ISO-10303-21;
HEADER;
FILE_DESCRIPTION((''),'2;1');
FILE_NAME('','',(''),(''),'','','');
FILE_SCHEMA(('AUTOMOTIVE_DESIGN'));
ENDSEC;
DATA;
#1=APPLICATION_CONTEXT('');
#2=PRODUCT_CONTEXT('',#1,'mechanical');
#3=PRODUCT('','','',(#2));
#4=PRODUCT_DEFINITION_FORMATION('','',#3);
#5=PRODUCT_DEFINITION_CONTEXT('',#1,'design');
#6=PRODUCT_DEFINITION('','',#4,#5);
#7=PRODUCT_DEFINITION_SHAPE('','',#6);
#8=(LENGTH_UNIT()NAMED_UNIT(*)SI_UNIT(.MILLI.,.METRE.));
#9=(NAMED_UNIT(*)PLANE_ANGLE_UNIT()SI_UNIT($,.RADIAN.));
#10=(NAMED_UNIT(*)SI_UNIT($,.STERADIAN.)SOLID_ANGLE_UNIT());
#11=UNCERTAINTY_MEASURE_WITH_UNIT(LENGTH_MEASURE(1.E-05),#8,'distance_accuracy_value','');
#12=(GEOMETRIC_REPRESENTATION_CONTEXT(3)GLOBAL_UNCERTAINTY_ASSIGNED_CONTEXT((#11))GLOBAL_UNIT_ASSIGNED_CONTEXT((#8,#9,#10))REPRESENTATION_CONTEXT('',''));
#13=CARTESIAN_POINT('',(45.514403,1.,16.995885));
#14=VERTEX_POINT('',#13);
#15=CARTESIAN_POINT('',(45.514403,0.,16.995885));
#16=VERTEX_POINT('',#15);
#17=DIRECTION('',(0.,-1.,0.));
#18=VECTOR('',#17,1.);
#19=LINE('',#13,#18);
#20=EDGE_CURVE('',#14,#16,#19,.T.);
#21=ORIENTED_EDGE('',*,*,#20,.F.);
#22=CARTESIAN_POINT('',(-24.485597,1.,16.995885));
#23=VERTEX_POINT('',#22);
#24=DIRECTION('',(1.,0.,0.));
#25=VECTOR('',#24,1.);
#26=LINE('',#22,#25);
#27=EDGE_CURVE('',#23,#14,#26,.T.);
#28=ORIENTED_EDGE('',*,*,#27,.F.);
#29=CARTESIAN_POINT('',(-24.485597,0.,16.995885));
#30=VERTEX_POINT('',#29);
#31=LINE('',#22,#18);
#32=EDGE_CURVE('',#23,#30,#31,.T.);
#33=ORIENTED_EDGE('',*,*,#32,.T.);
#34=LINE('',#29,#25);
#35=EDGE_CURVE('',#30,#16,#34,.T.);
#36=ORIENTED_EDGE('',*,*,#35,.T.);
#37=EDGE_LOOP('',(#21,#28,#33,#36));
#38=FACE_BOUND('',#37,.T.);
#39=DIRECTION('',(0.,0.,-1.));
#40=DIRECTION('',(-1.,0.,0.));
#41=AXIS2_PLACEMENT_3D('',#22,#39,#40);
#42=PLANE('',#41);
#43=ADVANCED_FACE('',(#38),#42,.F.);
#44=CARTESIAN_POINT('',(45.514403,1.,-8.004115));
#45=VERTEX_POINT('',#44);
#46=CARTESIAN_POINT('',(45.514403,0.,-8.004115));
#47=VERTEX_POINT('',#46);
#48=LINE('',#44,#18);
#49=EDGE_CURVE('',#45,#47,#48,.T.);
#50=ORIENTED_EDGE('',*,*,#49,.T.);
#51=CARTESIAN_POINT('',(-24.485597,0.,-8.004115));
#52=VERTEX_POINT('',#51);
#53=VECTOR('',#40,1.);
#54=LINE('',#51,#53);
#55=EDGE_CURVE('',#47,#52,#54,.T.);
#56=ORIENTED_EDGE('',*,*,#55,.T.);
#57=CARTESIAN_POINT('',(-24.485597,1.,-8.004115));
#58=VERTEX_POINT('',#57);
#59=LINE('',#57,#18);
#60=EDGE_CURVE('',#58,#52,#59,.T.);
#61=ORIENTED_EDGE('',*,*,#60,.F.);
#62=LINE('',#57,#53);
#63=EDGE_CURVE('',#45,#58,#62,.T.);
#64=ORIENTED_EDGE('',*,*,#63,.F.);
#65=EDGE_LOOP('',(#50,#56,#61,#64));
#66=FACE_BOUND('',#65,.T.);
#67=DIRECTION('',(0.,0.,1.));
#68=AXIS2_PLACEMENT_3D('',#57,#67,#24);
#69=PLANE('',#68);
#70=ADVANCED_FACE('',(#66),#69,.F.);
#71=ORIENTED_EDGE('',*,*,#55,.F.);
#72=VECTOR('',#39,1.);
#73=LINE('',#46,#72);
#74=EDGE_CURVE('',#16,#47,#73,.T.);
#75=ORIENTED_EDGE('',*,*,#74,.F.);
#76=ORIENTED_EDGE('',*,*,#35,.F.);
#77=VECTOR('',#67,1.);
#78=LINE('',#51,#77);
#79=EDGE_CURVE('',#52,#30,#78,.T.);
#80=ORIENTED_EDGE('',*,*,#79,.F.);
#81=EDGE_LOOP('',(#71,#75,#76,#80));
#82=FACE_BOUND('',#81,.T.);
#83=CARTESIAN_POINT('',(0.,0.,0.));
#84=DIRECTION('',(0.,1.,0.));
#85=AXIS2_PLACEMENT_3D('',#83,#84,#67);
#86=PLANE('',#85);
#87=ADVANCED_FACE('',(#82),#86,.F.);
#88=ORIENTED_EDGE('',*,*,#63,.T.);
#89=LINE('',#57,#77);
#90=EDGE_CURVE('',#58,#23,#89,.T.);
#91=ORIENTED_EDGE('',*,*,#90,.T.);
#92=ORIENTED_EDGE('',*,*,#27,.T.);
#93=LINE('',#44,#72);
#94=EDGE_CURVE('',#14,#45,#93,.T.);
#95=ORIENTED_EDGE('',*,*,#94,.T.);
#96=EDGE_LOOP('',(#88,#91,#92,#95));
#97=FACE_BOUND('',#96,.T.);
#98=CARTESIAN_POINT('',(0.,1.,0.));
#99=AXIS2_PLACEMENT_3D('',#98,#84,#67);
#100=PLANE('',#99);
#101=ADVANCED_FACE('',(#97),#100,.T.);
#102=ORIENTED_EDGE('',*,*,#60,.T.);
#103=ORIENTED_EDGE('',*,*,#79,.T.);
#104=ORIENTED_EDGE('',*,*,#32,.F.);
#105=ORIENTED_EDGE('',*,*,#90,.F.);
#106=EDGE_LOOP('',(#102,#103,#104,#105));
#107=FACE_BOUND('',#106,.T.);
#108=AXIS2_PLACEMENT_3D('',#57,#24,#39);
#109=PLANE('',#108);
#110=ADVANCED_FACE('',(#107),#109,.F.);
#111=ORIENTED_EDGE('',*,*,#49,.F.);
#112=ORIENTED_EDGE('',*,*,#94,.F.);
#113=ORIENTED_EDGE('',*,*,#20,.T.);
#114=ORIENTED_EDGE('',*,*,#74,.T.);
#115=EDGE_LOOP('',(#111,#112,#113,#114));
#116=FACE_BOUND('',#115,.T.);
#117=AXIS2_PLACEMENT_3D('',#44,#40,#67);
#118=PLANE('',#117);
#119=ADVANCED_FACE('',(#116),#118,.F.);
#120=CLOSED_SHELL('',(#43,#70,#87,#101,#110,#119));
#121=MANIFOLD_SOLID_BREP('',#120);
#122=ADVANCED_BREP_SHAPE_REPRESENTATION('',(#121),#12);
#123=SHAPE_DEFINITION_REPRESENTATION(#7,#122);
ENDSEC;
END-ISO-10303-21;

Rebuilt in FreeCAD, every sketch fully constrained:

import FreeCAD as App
import Part
import Sketcher

V = App.Vector


def add_polygon(sketch, points):
    """Adds a closed chain of lines whose ends are joined by coincident constraints."""
    first, n = sketch.GeometryCount, len(points)
    for a, b in zip(points, points[1:] + points[:1]):
        sketch.addGeometry(Part.LineSegment(App.Vector(*a, 0), App.Vector(*b, 0)), False)
    for i in range(n):
        sketch.addConstraint(Sketcher.Constraint("Coincident", first + i, 2, first + (i + 1) % n, 1))

doc = App.newDocument("Part")
body = doc.addObject("PartDesign::Body", "Body")

sketch1 = body.newObject("Sketcher::SketchObject", "Sketch")
sketch1.AttachmentSupport = (doc.getObject("XZ_Plane"), [""])
sketch1.MapMode = "FlatFace"
add_polygon(sketch1, [(-24, -8), (-24, 17), (46, 17), (46, -8)])
sketch1.addConstraint([
    Sketcher.Constraint("Vertical", 0),
    Sketcher.Constraint("Horizontal", 1),
    Sketcher.Constraint("Vertical", 2),
    Sketcher.Constraint("Horizontal", 3),
    Sketcher.Constraint("DistanceX", 1, 1, 1, 2, 70.0),
    Sketcher.Constraint("DistanceY", 0, 1, 0, 2, 25.0),
    Sketcher.Constraint("DistanceX", 0, 2, -1, 1, 24.485597),
    Sketcher.Constraint("DistanceY", -1, 1, 0, 2, 16.995885),
])
pad1 = body.newObject("PartDesign::Pad", "Pad")
pad1.Profile = sketch1
pad1.Length = 1
pad1.Reversed = True

doc.recompute()
